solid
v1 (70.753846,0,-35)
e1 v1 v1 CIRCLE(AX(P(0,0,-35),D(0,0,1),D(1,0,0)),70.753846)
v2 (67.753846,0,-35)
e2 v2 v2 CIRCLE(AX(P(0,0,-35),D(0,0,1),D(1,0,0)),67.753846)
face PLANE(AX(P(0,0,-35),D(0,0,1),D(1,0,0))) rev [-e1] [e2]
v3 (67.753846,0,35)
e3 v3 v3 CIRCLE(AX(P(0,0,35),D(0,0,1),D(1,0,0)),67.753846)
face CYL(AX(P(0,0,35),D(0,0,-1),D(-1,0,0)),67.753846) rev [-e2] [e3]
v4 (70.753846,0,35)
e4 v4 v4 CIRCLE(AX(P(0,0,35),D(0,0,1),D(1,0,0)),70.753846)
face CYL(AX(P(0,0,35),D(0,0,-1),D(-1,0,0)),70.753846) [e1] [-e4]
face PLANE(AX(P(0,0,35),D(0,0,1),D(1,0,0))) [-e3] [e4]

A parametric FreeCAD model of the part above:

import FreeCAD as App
import Part
import Sketcher
from FreeCAD import Vector
Q = App.Units.Quantity

doc = App.newDocument("Part")
body = doc.addObject("PartDesign::Body", "Body")

sketch1 = body.newObject("Sketcher::SketchObject", "Sketch")
sketch1.AttachmentSupport = (doc.getObject("XY_Plane"), [""])
sketch1.MapMode = "FlatFace"
sketch1.AttachmentOffset = App.Placement(Vector(0, 0, -35), App.Rotation())
sketch1.addGeometry([
    Part.Circle(Vector(0, 0, 0), Vector(0, 0, 1), 70.753846),
    Part.Circle(Vector(0, 0, 0), Vector(0, 0, 1), 67.753846),
], False)
sketch1.addConstraint([
    Sketcher.Constraint("Coincident", 0, 3, -1, 1),
    Sketcher.Constraint("Coincident", 1, 3, -1, 1),
    Sketcher.Constraint("Diameter", 0, Q("141.507692 mm")),
    Sketcher.Constraint("Diameter", 1, Q("135.507692 mm")),
])
pad1 = body.newObject("PartDesign::Pad", "Pad")
pad1.Profile = sketch1
pad1.Length = 70

doc.recompute()
